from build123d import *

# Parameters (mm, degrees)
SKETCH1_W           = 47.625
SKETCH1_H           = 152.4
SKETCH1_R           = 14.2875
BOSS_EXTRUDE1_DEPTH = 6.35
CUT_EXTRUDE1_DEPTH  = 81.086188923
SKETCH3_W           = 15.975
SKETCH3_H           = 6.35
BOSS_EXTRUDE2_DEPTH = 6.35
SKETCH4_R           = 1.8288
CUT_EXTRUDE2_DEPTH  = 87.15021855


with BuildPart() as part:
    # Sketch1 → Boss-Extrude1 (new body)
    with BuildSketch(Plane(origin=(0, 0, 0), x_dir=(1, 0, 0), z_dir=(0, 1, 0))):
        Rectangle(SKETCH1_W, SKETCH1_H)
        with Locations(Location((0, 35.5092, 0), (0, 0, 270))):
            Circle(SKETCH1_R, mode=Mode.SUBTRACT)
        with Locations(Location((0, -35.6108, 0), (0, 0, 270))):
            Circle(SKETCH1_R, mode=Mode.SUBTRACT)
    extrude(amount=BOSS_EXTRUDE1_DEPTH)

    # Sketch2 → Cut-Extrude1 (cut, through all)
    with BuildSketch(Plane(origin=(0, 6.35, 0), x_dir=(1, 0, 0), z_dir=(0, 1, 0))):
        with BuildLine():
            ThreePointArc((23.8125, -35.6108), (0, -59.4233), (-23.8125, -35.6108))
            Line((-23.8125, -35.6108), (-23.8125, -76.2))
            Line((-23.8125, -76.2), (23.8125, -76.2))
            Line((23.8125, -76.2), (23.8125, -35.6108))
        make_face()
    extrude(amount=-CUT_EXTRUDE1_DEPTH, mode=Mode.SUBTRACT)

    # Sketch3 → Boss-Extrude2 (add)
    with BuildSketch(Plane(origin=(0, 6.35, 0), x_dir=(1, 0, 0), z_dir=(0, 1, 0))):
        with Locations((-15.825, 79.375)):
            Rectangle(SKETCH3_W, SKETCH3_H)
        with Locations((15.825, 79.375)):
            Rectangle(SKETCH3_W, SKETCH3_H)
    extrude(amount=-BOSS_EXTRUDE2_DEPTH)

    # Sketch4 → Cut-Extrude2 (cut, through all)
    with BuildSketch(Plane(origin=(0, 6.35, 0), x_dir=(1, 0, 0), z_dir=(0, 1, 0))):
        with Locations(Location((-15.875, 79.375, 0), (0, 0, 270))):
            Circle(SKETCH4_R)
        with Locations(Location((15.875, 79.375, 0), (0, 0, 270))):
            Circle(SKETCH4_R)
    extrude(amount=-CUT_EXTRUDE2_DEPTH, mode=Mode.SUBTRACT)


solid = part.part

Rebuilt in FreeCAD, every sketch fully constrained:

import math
import FreeCAD as App
import Part
import Sketcher
Q = App.Units.Quantity


def add_polygon(sketch, points):
    """Adds a closed chain of lines whose ends are joined by coincident constraints."""
    first, n = sketch.GeometryCount, len(points)
    for a, b in zip(points, points[1:] + points[:1]):
        sketch.addGeometry(Part.LineSegment(App.Vector(*a, 0), App.Vector(*b, 0)), False)
    for i in range(n):
        sketch.addConstraint(Sketcher.Constraint("Coincident", first + i, 2, first + (i + 1) % n, 1))

doc = App.newDocument("Part")
params = doc.addObject("Spreadsheet::Sheet", "Params")
for row, (alias, value) in enumerate([
    ("sketch1_height", "6 in"),
    ("sketch1_diameter", "1.125 in"),
    ("sketch1_width", "1.875 in"),
    ("pad1_length", "0.25 in"),
    ("sketch2_radius", "0.9375 in"),
    ("sketch2_height", "1.598 in"),
    ("sketch3_height", "0.25 in"),
    ("pad2_length", "0.25 in"),
    ("sketch4_diameter", "0.144 in"),
], start=1):
    params.set(f"A{row}", alias)
    params.set(f"B{row}", "=" + value)
    params.setAlias(f"B{row}", alias)

body = doc.addObject("PartDesign::Body", "Body")

sketch1 = doc.addObject("Sketcher::SketchObject", "Sketch")
body.addObject(sketch1)
sketch1.AttachmentSupport = (doc.XZ_Plane, [""])
sketch1.MapMode = "FlatFace"
add_polygon(sketch1, [(-24, -76), (-24, 76), (24, 76), (24, -76)])
sketch1.addGeometry(Part.Circle(App.Vector(0, 36, 0), App.Vector(0, 0, 1), 14), False)
sketch1.addGeometry(Part.Circle(App.Vector(0, -36, 0), App.Vector(0, 0, 1), 14), False)
sketch1.addConstraint([
    Sketcher.Constraint("Vertical", 0),
    Sketcher.Constraint("Horizontal", 1),
    Sketcher.Constraint("Vertical", 2),
    Sketcher.Constraint("Horizontal", 3),
    Sketcher.Constraint("Equal", 4, 5),
    Sketcher.Constraint("Symmetric", 0, 2, 2, 2, -1, 1),
    Sketcher.Constraint("PointOnObject", 4, 3, -2),
    Sketcher.Constraint("PointOnObject", 5, 3, -2),
    Sketcher.Constraint("DistanceY", 0, 1, 0, 2, Q("6 in")),
    Sketcher.Constraint("Diameter", 4, Q("1.125 in")),
    Sketcher.Constraint("DistanceY", 5, 3, 4, 3, Q("2.8 in")),
    Sketcher.Constraint("DistanceX", 1, 1, 1, 2, Q("1.875 in")),
    Sketcher.Constraint("DistanceY", -1, 1, 4, 3, Q("1.402 in")),
])
sketch1.setExpression("Constraints[12]", "Params.sketch1_height")
sketch1.setExpression("Constraints[13]", "Params.sketch1_diameter")
sketch1.setExpression("Constraints[15]", "Params.sketch1_width")
pad1 = doc.addObject("PartDesign::Pad", "Pad")
body.addObject(pad1)
pad1.Profile = sketch1
pad1.setExpression("Length", "Params.pad1_length")
pad1.Reversed = True

sketch2 = doc.addObject("Sketcher::SketchObject", "Sketch001")
body.addObject(sketch2)
sketch2.AttachmentSupport = (doc.XZ_Plane, [""])
sketch2.MapMode = "FlatFace"
sketch2.AttachmentOffset = App.Placement(App.Vector(0, 0, -0.25 * 25.4), App.Rotation())
sketch2.addGeometry([
    Part.ArcOfCircle(Part.Circle(App.Vector(0, 36, 0), App.Vector(0, 0, 1), 24), math.radians(0), math.radians(180)),
    Part.LineSegment(App.Vector(-24, 36, 0), App.Vector(-24, 76, 0)),
    Part.LineSegment(App.Vector(-24, 76, 0), App.Vector(24, 76, 0)),
    Part.LineSegment(App.Vector(24, 76, 0), App.Vector(24, 36, 0)),
], False)
sketch2.addConstraint([
    Sketcher.Constraint("Tangent", 0, 2, 1, 1),
    Sketcher.Constraint("Coincident", 1, 2, 2, 1),
    Sketcher.Constraint("Coincident", 2, 2, 3, 1),
    Sketcher.Constraint("Tangent", 3, 2, 0, 1),
    Sketcher.Constraint("Vertical", 1),
    Sketcher.Constraint("Horizontal", 2),
    Sketcher.Constraint("Vertical", 3),
    Sketcher.Constraint("PointOnObject", 0, 3, -2),
    Sketcher.Constraint("DistanceY", -1, 1, 1, 2, Q("3 in")),
    Sketcher.Constraint("Radius", 0, Q("0.9375 in")),
    Sketcher.Constraint("DistanceY", 1, 1, 1, 2, Q("1.598 in")),
])
sketch2.setExpression("Constraints[9]", "Params.sketch2_radius")
sketch2.setExpression("Constraints[10]", "Params.sketch2_height")
pocket1 = doc.addObject("PartDesign::Pocket", "Pocket")
body.addObject(pocket1)
pocket1.Profile = sketch2
pocket1.Type = "ThroughAll"
pocket1.Reversed = True

sketch3 = doc.addObject("Sketcher::SketchObject", "Sketch002")
body.addObject(sketch3)
sketch3.AttachmentSupport = (doc.XZ_Plane, [""])
sketch3.MapMode = "FlatFace"
sketch3.AttachmentOffset = App.Placement(App.Vector(0, 0, -0.25 * 25.4), App.Rotation())
add_polygon(sketch3, [(-24, -83), (-24, -76), (-8, -76), (-8, -83)])
add_polygon(sketch3, [(8, -83), (8, -76), (24, -76), (24, -83)])
sketch3.addConstraint([
    Sketcher.Constraint("Vertical", 0),
    Sketcher.Constraint("Horizontal", 1),
    Sketcher.Constraint("Vertical", 2),
    Sketcher.Constraint("Horizontal", 3),
    Sketcher.Constraint("Vertical", 4),
    Sketcher.Constraint("Horizontal", 5),
    Sketcher.Constraint("Vertical", 6),
    Sketcher.Constraint("Horizontal", 7),
    Sketcher.Constraint("Symmetric", 1, 2, 4, 2, -2),
    Sketcher.Constraint("Symmetric", 3, 2, 6, 2, -2),
    Sketcher.Constraint("DistanceY", 0, 2, -1, 1, Q("3 in")),
    Sketcher.Constraint("DistanceY", 0, 1, 0, 2, Q("0.25 in")),
    Sketcher.Constraint("DistanceX", 0, 2, -1, 1, Q("0.9375 in")),
    Sketcher.Constraint("DistanceX", 1, 1, 1, 2, 15.975),
])
sketch3.setExpression("Constraints[19]", "Params.sketch3_height")
pad2 = doc.addObject("PartDesign::Pad", "Pad001")
body.addObject(pad2)
pad2.Profile = sketch3
pad2.setExpression("Length", "Params.pad2_length")

sketch4 = doc.addObject("Sketcher::SketchObject", "Sketch003")
body.addObject(sketch4)
sketch4.AttachmentSupport = (doc.XZ_Plane, [""])
sketch4.MapMode = "FlatFace"
sketch4.AttachmentOffset = App.Placement(App.Vector(0, 0, -0.25 * 25.4), App.Rotation())
sketch4.addGeometry([
    Part.Circle(App.Vector(-15.9, -79.4, 0), App.Vector(0, 0, 1), 1.8),
    Part.Circle(App.Vector(15.9, -79.4, 0), App.Vector(0, 0, 1), 1.8),
], False)
sketch4.addConstraint([
    Sketcher.Constraint("Equal", 0, 1),
    Sketcher.Constraint("Symmetric", 0, 3, 1, 3, -2),
    Sketcher.Constraint("Diameter", 0, Q("0.144 in")),
    Sketcher.Constraint("DistanceX", 0, 3, 1, 3, Q("1.25 in")),
    Sketcher.Constraint("DistanceY", 0, 3, -1, 1, Q("3.125 in")),
])
sketch4.setExpression("Constraints[2]", "Params.sketch4_diameter")
pocket2 = doc.addObject("PartDesign::Pocket", "Pocket001")
body.addObject(pocket2)
pocket2.Profile = sketch4
pocket2.Type = "ThroughAll"
pocket2.Reversed = True

doc.recompute()
